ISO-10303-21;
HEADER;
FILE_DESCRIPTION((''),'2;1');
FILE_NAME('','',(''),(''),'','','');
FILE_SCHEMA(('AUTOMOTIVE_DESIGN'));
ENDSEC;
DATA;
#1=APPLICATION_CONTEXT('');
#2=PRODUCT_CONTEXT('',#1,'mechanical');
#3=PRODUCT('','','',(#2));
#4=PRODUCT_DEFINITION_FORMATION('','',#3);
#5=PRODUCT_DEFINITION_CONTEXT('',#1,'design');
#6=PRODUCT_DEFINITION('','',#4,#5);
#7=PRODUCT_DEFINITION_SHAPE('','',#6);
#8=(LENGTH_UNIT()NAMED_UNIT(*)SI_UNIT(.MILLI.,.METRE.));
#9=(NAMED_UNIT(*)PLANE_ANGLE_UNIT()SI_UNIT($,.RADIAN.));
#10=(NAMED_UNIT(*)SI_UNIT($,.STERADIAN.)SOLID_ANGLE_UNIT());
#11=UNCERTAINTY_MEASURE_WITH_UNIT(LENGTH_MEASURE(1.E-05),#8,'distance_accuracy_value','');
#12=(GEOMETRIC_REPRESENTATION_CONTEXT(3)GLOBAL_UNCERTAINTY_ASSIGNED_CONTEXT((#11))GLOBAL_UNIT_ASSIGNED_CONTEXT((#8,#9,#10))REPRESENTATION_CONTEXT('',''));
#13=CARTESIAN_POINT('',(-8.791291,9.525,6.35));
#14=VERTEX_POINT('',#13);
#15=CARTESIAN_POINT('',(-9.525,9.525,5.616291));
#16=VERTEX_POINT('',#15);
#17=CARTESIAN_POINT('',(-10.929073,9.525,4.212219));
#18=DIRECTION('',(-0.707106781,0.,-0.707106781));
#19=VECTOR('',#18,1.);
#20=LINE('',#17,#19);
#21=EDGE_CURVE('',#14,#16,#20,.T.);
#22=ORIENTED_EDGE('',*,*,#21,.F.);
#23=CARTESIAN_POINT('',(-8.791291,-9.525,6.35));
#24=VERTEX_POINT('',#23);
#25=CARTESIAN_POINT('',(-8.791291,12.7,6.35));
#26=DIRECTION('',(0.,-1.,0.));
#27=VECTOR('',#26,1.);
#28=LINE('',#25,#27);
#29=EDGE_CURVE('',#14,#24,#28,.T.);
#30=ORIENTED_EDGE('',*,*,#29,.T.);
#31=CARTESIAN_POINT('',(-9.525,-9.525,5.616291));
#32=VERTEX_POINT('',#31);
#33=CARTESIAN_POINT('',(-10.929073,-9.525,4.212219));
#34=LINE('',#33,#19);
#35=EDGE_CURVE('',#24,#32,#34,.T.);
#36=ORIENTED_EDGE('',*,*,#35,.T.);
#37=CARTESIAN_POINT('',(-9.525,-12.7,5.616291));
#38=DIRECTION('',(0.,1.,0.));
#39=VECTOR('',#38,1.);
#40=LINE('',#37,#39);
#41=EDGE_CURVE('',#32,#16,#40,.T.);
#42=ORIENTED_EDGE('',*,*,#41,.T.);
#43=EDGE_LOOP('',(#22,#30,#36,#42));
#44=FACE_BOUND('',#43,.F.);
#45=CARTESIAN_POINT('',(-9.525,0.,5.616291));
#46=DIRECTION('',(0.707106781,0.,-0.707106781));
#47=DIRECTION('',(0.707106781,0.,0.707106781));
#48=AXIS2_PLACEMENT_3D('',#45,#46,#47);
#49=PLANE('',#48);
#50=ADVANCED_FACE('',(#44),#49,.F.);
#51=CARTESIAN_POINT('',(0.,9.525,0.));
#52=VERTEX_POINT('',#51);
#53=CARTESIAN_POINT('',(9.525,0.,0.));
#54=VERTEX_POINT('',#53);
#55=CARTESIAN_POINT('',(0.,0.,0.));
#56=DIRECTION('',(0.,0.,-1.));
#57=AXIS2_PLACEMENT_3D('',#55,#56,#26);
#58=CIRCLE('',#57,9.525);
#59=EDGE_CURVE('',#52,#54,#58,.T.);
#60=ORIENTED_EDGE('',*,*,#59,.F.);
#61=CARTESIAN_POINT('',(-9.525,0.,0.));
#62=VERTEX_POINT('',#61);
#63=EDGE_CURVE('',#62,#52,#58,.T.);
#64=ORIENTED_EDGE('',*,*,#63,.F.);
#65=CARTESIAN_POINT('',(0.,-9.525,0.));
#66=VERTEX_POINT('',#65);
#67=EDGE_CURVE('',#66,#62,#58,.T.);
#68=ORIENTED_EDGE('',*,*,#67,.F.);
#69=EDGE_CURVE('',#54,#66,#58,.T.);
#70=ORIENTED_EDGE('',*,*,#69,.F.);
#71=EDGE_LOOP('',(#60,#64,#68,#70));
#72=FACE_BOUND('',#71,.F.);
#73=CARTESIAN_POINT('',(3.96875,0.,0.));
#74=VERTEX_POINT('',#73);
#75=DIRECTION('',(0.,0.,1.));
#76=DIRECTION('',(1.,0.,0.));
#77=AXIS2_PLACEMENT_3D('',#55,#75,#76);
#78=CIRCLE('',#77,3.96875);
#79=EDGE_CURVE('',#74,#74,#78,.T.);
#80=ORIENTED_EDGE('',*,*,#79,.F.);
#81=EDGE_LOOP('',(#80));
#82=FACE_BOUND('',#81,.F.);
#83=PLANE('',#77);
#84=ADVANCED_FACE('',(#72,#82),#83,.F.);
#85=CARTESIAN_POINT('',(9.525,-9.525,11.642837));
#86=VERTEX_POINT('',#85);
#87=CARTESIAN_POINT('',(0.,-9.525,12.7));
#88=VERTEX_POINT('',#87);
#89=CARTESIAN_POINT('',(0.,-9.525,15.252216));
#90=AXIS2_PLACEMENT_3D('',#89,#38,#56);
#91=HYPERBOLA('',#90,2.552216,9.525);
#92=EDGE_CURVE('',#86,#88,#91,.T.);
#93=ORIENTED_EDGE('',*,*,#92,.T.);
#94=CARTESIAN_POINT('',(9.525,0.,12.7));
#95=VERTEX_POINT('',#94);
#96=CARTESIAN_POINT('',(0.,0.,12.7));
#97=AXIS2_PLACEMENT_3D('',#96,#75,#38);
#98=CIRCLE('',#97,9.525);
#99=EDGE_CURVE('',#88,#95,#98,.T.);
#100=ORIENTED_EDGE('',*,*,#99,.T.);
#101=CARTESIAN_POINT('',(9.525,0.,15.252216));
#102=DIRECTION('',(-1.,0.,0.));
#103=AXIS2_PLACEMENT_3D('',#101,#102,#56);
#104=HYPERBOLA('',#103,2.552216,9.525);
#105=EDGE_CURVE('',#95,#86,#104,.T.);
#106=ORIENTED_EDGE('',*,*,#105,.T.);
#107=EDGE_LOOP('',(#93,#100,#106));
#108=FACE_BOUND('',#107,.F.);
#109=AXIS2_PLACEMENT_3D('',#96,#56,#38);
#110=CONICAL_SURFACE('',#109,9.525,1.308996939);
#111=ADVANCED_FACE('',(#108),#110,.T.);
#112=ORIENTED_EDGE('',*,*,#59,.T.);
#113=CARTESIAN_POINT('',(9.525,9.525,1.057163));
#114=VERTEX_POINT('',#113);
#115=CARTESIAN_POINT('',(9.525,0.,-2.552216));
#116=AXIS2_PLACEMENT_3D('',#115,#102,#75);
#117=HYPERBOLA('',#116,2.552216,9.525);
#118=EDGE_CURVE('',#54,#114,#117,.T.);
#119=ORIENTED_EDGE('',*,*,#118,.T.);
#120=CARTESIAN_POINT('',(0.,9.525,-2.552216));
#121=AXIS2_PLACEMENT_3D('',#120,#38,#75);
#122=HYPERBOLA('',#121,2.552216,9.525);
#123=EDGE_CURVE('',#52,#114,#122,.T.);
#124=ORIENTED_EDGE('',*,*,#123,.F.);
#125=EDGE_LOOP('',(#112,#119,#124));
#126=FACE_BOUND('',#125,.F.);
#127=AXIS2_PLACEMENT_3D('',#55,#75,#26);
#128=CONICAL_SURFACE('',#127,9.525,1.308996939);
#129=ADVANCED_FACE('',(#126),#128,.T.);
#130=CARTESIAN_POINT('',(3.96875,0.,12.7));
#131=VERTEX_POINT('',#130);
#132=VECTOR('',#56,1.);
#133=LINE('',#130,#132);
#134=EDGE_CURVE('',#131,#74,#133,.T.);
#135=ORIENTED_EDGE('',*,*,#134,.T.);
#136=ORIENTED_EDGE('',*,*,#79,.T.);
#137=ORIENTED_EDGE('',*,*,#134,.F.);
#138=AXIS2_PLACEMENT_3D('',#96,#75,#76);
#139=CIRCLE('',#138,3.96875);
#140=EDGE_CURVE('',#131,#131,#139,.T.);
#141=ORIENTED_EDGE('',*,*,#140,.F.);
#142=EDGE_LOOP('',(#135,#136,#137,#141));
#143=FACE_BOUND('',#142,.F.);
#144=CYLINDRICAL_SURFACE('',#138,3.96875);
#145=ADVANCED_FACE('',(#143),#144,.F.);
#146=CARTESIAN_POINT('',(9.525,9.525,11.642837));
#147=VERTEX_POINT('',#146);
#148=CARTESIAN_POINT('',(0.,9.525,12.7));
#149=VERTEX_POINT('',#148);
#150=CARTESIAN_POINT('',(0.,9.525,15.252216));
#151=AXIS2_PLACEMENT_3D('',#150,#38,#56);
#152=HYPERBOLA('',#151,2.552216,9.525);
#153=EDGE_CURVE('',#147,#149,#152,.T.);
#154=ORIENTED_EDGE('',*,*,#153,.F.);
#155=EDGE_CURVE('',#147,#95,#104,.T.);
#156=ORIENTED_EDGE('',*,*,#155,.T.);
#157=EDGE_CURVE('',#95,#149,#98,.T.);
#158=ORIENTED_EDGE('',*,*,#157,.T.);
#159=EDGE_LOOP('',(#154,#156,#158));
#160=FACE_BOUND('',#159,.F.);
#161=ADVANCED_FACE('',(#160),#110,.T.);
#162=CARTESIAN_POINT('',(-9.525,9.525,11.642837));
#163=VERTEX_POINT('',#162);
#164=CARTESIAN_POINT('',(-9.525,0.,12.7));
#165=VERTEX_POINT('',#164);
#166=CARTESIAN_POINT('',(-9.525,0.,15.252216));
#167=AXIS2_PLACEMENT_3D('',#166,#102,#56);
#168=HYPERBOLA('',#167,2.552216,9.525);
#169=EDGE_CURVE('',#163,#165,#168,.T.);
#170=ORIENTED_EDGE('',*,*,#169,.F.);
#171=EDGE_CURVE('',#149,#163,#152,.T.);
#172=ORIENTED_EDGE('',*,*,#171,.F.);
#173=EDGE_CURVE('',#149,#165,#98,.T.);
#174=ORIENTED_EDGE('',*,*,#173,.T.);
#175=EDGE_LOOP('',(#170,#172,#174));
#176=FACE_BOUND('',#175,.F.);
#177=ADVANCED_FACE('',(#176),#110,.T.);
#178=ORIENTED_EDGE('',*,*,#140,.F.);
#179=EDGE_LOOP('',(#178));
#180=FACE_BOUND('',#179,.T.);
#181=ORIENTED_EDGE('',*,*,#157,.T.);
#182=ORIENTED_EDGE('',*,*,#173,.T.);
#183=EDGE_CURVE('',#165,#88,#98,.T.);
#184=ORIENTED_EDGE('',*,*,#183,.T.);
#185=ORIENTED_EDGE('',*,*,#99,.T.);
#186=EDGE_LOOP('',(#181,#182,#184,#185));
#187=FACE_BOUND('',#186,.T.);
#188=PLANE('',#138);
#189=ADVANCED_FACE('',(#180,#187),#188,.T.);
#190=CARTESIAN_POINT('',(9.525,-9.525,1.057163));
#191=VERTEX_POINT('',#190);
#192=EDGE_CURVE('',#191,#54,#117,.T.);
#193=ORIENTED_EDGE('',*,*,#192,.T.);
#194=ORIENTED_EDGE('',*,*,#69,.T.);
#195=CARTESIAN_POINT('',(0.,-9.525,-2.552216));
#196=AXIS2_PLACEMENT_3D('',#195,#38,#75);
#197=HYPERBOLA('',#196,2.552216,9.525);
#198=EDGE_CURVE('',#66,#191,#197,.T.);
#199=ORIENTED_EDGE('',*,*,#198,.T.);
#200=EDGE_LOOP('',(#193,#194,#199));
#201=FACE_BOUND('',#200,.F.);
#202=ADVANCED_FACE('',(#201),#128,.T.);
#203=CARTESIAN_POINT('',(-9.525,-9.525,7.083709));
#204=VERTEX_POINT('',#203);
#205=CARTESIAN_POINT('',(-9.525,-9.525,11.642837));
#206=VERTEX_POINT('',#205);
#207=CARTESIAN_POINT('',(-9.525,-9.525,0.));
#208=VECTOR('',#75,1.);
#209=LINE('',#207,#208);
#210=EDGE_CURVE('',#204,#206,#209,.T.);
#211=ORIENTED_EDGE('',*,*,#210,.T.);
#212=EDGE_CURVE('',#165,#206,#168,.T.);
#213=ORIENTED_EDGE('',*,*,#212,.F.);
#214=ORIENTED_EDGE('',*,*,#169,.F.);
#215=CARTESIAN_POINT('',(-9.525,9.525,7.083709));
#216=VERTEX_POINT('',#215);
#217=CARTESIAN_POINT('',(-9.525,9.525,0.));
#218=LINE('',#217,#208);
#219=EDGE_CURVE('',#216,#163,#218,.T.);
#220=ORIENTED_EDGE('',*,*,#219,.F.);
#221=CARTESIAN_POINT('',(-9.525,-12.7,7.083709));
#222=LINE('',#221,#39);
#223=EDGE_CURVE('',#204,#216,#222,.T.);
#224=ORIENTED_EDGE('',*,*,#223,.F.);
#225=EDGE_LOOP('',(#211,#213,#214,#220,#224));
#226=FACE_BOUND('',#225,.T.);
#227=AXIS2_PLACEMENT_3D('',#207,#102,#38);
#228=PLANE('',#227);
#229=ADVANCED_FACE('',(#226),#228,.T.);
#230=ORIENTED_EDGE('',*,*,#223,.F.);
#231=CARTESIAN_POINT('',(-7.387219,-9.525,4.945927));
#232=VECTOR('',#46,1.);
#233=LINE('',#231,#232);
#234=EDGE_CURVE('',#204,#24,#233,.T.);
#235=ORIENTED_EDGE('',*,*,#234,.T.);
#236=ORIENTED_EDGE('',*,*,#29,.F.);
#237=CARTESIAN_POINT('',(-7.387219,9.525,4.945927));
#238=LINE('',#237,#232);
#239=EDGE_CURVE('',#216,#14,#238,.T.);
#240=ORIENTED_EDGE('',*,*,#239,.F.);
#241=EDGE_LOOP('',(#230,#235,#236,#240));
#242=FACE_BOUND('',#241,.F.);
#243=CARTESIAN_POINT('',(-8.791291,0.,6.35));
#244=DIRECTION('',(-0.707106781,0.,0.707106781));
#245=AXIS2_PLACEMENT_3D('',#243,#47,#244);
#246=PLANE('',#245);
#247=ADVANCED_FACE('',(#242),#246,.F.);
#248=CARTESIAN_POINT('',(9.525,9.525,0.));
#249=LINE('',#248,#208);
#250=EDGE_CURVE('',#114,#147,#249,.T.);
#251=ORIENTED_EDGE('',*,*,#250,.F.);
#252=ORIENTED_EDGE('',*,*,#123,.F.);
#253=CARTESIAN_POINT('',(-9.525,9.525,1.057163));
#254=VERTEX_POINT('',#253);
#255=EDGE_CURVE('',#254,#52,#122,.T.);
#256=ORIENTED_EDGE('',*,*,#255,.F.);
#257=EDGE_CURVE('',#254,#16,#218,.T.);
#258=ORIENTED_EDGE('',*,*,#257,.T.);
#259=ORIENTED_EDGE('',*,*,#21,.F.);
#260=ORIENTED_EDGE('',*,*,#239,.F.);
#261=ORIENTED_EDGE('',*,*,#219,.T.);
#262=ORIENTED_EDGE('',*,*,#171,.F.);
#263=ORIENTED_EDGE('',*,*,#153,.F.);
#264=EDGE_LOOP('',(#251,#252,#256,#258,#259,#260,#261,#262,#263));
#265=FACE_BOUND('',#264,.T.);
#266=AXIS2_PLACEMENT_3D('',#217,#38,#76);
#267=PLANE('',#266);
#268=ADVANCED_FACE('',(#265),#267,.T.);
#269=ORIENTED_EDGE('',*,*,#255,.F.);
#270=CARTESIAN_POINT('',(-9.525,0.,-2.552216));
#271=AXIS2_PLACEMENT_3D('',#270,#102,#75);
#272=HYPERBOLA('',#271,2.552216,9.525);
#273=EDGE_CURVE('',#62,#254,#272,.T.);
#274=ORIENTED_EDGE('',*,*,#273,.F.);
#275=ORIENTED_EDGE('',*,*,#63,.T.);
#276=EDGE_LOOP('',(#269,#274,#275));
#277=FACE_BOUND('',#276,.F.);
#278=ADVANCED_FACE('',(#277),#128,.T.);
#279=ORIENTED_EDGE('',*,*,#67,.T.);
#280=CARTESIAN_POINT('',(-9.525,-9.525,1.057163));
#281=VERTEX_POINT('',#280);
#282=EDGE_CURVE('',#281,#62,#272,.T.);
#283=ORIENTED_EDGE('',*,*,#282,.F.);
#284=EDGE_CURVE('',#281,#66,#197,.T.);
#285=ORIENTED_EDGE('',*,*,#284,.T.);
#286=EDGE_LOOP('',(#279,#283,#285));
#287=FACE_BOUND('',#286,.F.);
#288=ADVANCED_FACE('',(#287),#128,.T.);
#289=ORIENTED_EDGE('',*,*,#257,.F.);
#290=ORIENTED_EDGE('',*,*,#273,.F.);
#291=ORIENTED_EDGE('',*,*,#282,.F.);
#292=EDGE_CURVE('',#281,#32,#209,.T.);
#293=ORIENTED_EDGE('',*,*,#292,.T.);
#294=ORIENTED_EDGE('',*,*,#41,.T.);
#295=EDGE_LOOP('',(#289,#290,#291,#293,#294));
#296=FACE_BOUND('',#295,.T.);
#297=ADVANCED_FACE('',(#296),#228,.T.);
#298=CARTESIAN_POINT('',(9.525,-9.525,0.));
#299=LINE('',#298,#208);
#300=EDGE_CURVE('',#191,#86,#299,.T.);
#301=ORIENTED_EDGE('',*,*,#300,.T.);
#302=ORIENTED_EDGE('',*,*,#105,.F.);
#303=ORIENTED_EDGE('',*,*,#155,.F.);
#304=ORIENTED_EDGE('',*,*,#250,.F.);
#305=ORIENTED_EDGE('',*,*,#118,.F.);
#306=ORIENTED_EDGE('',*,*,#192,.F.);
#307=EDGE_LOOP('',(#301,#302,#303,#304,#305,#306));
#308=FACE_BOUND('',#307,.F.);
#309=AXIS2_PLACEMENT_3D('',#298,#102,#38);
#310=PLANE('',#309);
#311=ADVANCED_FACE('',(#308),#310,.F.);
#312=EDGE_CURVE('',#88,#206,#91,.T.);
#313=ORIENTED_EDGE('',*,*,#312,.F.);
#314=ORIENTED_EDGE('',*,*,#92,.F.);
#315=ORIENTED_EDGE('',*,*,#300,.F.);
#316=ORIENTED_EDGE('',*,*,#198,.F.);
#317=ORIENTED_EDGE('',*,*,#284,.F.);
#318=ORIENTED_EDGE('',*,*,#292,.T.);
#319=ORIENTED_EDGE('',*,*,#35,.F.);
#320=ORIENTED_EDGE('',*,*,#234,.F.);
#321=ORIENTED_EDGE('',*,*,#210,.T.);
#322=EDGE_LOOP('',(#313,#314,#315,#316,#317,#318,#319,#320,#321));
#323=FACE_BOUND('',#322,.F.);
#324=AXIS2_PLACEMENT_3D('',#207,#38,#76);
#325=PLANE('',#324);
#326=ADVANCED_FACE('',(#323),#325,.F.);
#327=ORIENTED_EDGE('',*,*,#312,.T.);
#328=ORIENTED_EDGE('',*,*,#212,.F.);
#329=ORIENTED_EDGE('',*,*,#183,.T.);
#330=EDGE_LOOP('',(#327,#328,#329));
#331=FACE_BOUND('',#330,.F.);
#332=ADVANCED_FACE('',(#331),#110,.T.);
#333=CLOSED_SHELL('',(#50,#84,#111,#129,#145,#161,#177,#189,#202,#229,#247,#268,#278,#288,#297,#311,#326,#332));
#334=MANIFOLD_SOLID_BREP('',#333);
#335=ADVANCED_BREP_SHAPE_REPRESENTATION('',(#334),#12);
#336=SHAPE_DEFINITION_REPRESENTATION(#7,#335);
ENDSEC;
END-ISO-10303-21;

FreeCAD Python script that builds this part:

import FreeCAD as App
import Part
import Sketcher
from FreeCAD import Vector
Q = App.Units.Quantity

doc = App.newDocument("Part")
body = doc.addObject("PartDesign::Body", "Body")

sketch1 = body.newObject("Sketcher::SketchObject", "Sketch")
sketch1.AttachmentSupport = (doc.getObject("XY_Plane"), [""])
sketch1.MapMode = "FlatFace"
sketch1.addGeometry([
    Part.LineSegment(Vector(-10, 10, 0), Vector(-10, -10, 0)),
    Part.LineSegment(Vector(-10, -10, 0), Vector(10, -10, 0)),
    Part.LineSegment(Vector(10, -10, 0), Vector(10, 10, 0)),
    Part.LineSegment(Vector(10, 10, 0), Vector(-10, 10, 0)),
], False)
sketch1.addConstraint([
    Sketcher.Constraint("Coincident", 0, 2, 1, 1),
    Sketcher.Constraint("Coincident", 1, 2, 2, 1),
    Sketcher.Constraint("Coincident", 2, 2, 3, 1),
    Sketcher.Constraint("Coincident", 3, 2, 0, 1),
    Sketcher.Constraint("Vertical", 0),
    Sketcher.Constraint("Horizontal", 1),
    Sketcher.Constraint("Vertical", 2),
    Sketcher.Constraint("Horizontal", 3),
    Sketcher.Constraint("Symmetric", 0, 2, 2, 2, -1, 1),
    Sketcher.Constraint("Equal", 3, 0),
    Sketcher.Constraint("DistanceX", 1, 1, 1, 2, Q("0.75 in")),
])
pad1 = body.newObject("PartDesign::Pad", "Pad")
pad1.Profile = sketch1
pad1.Length = Q("0.5 in")

sketch2 = body.newObject("Sketcher::SketchObject", "Sketch001")
sketch2.AttachmentSupport = (doc.getObject("XY_Plane"), [""])
sketch2.MapMode = "FlatFace"
sketch2.AttachmentOffset = App.Placement(Vector(0, 0, 0.5 * 25.4), App.Rotation())
sketch2.addGeometry(Part.Circle(Vector(0, 0, 0), Vector(0, 0, 1), 4), False)
sketch2.addConstraint([
    Sketcher.Constraint("Coincident", 0, 3, -1, 1),
    Sketcher.Constraint("Diameter", 0, Q("0.3125 in")),
])
pocket1 = body.newObject("PartDesign::Pocket", "Pocket")
pocket1.Profile = sketch2
pocket1.Type = "ThroughAll"

sketch3 = body.newObject("Sketcher::SketchObject", "Sketch002")
sketch3.AttachmentSupport = (doc.getObject("YZ_Plane"), [""])
sketch3.MapMode = "FlatFace"
sketch3.addGeometry([
    Part.LineSegment(Vector(24.8, 12.7, 0), Vector(9.5, 12.7, 0)),
    Part.LineSegment(Vector(9.5, 12.7, 0), Vector(24.8, 8.6, 0)),
    Part.LineSegment(Vector(24.8, 8.6, 0), Vector(24.8, 12.7, 0)),
], False)
sketch3.addConstraint([
    Sketcher.Constraint("Coincident", 0, 2, 1, 1),
    Sketcher.Constraint("Coincident", 1, 2, 2, 1),
    Sketcher.Constraint("Coincident", 2, 2, 0, 1),
    Sketcher.Constraint("Horizontal", 0),
    Sketcher.Constraint("Vertical", 2),
    Sketcher.Constraint("DistanceX", 0, 2, 0, 1, Q("0.6 in")),
    Sketcher.Constraint("Angle", 1, Q("-15 deg")),
    Sketcher.Constraint("DistanceY", -1, 1, 0, 2, Q("0.5 in")),
    Sketcher.Constraint("DistanceX", -1, 1, 0, 2, Q("0.375 in")),
])
groove = body.newObject("PartDesign::Groove", "Groove")
groove.Profile = sketch3
groove.ReferenceAxis = (sketch3, ["V_Axis"])
groove.Angle = 360

sketch4 = body.newObject("Sketcher::SketchObject", "Sketch003")
sketch4.AttachmentSupport = (doc.getObject("YZ_Plane"), [""])
sketch4.MapMode = "FlatFace"
sketch4.addGeometry([
    Part.LineSegment(Vector(-22.8, 0, 0), Vector(-9.5, 0, 0)),
    Part.LineSegment(Vector(-9.5, 0, 0), Vector(-22.8, 3.6, 0)),
    Part.LineSegment(Vector(-22.8, 3.6, 0), Vector(-22.8, 0, 0)),
], False)
sketch4.addConstraint([
    Sketcher.Constraint("Coincident", 0, 2, 1, 1),
    Sketcher.Constraint("Coincident", 1, 2, 2, 1),
    Sketcher.Constraint("Coincident", 2, 2, 0, 1),
    Sketcher.Constraint("Horizontal", 0),
    Sketcher.Constraint("Vertical", 2),
    Sketcher.Constraint("PointOnObject", 0, 2, -1),
    Sketcher.Constraint("Angle", 1, Q("165 deg")),
    Sketcher.Constraint("DistanceX", 0, 2, -1, 1, Q("0.375 in")),
    Sketcher.Constraint("DistanceX", 0, 1, 0, 2, 13.30555),
])
groove2 = body.newObject("PartDesign::Groove", "Groove001")
groove2.Profile = sketch4
groove2.ReferenceAxis = (sketch4, ["V_Axis"])
groove2.Angle = 360

sketch5 = body.newObject("Sketcher::SketchObject", "Sketch004")
sketch5.AttachmentSupport = (doc.getObject("XZ_Plane"), [""])
sketch5.MapMode = "FlatFace"
sketch5.addGeometry([
    Part.LineSegment(Vector(-9.5, 5.6, 0), Vector(-8.8, 6.3, 0)),
    Part.LineSegment(Vector(-8.8, 6.3, 0), Vector(-9.5, 7.1, 0)),
    Part.LineSegment(Vector(-9.5, 7.1, 0), Vector(-9.5, 5.6, 0)),
], False)
sketch5.addConstraint([
    Sketcher.Constraint("Coincident", 0, 2, 1, 1),
    Sketcher.Constraint("Coincident", 1, 2, 2, 1),
    Sketcher.Constraint("Coincident", 2, 2, 0, 1),
    Sketcher.Constraint("Vertical", 2),
    Sketcher.Constraint("Perpendicular", 0, 1),
    Sketcher.Constraint("Equal", 0, 1),
    Sketcher.Constraint("DistanceY", -1, 1, 0, 2, Q("0.25 in")),
    Sketcher.Constraint("DistanceX", 1, 2, -1, 1, Q("0.375 in")),
    Sketcher.Constraint("Distance", 0, 1.037621),
])
pocket2 = body.newObject("PartDesign::Pocket", "Pocket001")
pocket2.Profile = sketch5
pocket2.Length = Q("1 in")
pocket2.Midplane = True

doc.recompute()
